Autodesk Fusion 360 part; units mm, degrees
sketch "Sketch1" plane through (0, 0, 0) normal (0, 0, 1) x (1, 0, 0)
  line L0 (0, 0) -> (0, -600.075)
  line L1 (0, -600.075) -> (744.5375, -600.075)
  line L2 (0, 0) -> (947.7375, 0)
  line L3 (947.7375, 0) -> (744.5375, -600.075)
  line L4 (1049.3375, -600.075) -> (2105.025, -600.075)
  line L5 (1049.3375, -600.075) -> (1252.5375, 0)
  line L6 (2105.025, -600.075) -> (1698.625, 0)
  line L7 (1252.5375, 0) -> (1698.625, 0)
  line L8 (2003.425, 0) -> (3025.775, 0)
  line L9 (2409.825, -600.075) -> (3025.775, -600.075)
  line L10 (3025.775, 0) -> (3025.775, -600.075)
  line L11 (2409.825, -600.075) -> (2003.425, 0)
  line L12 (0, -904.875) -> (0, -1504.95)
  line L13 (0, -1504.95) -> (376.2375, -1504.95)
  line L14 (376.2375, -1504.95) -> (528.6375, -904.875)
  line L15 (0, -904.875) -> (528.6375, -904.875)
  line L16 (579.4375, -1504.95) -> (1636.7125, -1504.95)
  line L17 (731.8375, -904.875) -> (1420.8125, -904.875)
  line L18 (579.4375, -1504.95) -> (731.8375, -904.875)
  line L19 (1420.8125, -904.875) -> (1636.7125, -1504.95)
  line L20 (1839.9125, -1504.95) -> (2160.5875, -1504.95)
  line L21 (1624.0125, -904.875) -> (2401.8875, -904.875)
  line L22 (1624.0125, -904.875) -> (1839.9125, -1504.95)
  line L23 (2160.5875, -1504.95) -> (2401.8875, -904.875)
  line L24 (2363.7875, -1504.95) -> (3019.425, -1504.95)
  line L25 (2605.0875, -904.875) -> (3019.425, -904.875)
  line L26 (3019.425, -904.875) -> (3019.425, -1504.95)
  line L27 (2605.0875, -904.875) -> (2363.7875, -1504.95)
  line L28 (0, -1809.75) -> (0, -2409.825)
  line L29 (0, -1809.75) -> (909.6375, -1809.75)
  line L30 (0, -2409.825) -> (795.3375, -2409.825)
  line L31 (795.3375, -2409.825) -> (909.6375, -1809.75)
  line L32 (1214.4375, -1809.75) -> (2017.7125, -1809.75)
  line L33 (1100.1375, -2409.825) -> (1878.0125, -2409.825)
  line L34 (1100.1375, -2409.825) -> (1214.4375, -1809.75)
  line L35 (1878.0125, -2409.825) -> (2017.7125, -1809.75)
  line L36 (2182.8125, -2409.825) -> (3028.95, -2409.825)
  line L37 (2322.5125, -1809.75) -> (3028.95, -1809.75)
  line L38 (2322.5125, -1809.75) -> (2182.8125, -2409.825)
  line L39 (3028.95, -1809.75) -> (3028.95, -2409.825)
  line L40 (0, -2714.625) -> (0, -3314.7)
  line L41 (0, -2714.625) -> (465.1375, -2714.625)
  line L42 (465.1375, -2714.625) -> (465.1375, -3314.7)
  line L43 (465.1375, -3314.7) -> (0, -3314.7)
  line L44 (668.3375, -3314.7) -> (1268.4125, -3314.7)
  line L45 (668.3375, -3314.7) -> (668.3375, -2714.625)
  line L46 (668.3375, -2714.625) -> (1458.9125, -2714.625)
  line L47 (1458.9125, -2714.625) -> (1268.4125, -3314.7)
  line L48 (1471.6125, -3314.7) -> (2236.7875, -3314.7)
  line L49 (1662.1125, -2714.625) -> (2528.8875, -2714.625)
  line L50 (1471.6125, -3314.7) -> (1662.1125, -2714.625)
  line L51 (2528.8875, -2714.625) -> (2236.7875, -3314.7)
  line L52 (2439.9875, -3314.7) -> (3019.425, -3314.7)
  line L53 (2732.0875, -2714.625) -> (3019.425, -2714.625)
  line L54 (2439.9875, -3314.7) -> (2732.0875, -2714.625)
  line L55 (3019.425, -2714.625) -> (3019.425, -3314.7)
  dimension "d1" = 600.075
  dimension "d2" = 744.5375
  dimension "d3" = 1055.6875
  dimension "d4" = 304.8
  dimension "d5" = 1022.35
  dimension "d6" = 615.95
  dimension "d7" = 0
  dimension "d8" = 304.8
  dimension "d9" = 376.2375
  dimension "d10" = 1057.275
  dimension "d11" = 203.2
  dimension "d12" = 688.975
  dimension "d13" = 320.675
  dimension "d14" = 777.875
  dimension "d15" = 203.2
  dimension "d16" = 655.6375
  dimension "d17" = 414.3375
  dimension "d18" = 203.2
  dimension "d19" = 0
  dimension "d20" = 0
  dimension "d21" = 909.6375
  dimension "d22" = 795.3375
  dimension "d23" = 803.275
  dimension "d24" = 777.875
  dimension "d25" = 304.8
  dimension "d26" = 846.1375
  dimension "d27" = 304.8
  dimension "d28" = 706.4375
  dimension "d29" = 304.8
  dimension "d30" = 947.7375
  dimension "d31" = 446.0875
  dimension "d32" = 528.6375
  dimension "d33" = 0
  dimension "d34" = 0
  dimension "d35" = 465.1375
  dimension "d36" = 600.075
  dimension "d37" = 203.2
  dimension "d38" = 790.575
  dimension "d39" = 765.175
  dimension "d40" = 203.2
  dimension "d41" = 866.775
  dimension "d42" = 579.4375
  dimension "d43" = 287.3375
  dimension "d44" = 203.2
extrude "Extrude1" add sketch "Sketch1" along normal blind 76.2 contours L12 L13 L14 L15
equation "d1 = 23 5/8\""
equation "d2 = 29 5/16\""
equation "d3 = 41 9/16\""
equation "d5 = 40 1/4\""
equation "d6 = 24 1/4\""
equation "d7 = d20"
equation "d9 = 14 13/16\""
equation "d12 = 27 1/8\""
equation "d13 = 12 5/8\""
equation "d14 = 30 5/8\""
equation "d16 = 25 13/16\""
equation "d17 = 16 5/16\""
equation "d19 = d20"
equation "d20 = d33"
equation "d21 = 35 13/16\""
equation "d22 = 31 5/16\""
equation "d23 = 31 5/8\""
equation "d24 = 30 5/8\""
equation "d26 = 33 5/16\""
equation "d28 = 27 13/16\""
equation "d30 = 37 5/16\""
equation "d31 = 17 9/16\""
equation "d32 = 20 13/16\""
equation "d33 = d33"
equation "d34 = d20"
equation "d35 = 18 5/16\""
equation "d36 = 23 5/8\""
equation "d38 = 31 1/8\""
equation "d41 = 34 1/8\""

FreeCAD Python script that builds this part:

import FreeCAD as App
import Part
import Sketcher
from FreeCAD import Vector
Q = App.Units.Quantity

doc = App.newDocument("Part")
params = doc.addObject("Spreadsheet::Sheet", "Params")
for row, (alias, value) in enumerate([
    ("sketch1_width", "20.8125 in"),
    ("sketch1_width2", "14.8125 in"),
    ("sketch1_height", "23.625 in"),
    ("pad1_length", "3 in"),
], start=1):
    params.set(f"A{row}", alias)
    params.set(f"B{row}", "=" + value)
    params.setAlias(f"B{row}", alias)

body = doc.addObject("PartDesign::Body", "Body")

sketch1 = body.newObject("Sketcher::SketchObject", "Sketch")
sketch1.AttachmentSupport = (doc.getObject("XY_Plane"), [""])
sketch1.MapMode = "FlatFace"
sketch1.addGeometry(Part.LineSegment(Vector(528.6375, -904.875, 0), Vector(0, -904.875, 0)), False)
sketch1.addGeometry(Part.LineSegment(Vector(0, -904.875, 0), Vector(0, -1504.95, 0)), False)
sketch1.addGeometry(Part.LineSegment(Vector(0, -1504.95, 0), Vector(376.2375, -1504.95, 0)), False)
sketch1.addGeometry(Part.LineSegment(Vector(376.2375, -1504.95, 0), Vector(528.6375, -904.875, 0)), False)
sketch1.addConstraint(Sketcher.Constraint("Coincident", 0, 2, 1, 1))
sketch1.addConstraint(Sketcher.Constraint("Coincident", 1, 2, 2, 1))
sketch1.addConstraint(Sketcher.Constraint("Coincident", 2, 2, 3, 1))
sketch1.addConstraint(Sketcher.Constraint("Coincident", 3, 2, 0, 1))
sketch1.addConstraint(Sketcher.Constraint("Horizontal", 0))
sketch1.addConstraint(Sketcher.Constraint("Vertical", 1))
sketch1.addConstraint(Sketcher.Constraint("Horizontal", 2))
sketch1.addConstraint(Sketcher.Constraint("PointOnObject", 0, 2, -2))
sketch1.addConstraint(Sketcher.Constraint("DistanceX", 0, 2, 0, 1, Q("20.8125 in")))
sketch1.addConstraint(Sketcher.Constraint("DistanceX", 2, 1, 2, 2, Q("14.8125 in")))
sketch1.addConstraint(Sketcher.Constraint("DistanceY", 1, 2, 1, 1, Q("23.625 in")))
sketch1.addConstraint(Sketcher.Constraint("DistanceY", 1, 2, -1, 1, Q("59.25 in")))
sketch1.setExpression("Constraints[8]", "Params.sketch1_width")
sketch1.setExpression("Constraints[9]", "Params.sketch1_width2")
sketch1.setExpression("Constraints[10]", "Params.sketch1_height")
pad1 = body.newObject("PartDesign::Pad", "Pad")
pad1.Profile = sketch1
pad1.setExpression("Length", "Params.pad1_length")

doc.recompute()
